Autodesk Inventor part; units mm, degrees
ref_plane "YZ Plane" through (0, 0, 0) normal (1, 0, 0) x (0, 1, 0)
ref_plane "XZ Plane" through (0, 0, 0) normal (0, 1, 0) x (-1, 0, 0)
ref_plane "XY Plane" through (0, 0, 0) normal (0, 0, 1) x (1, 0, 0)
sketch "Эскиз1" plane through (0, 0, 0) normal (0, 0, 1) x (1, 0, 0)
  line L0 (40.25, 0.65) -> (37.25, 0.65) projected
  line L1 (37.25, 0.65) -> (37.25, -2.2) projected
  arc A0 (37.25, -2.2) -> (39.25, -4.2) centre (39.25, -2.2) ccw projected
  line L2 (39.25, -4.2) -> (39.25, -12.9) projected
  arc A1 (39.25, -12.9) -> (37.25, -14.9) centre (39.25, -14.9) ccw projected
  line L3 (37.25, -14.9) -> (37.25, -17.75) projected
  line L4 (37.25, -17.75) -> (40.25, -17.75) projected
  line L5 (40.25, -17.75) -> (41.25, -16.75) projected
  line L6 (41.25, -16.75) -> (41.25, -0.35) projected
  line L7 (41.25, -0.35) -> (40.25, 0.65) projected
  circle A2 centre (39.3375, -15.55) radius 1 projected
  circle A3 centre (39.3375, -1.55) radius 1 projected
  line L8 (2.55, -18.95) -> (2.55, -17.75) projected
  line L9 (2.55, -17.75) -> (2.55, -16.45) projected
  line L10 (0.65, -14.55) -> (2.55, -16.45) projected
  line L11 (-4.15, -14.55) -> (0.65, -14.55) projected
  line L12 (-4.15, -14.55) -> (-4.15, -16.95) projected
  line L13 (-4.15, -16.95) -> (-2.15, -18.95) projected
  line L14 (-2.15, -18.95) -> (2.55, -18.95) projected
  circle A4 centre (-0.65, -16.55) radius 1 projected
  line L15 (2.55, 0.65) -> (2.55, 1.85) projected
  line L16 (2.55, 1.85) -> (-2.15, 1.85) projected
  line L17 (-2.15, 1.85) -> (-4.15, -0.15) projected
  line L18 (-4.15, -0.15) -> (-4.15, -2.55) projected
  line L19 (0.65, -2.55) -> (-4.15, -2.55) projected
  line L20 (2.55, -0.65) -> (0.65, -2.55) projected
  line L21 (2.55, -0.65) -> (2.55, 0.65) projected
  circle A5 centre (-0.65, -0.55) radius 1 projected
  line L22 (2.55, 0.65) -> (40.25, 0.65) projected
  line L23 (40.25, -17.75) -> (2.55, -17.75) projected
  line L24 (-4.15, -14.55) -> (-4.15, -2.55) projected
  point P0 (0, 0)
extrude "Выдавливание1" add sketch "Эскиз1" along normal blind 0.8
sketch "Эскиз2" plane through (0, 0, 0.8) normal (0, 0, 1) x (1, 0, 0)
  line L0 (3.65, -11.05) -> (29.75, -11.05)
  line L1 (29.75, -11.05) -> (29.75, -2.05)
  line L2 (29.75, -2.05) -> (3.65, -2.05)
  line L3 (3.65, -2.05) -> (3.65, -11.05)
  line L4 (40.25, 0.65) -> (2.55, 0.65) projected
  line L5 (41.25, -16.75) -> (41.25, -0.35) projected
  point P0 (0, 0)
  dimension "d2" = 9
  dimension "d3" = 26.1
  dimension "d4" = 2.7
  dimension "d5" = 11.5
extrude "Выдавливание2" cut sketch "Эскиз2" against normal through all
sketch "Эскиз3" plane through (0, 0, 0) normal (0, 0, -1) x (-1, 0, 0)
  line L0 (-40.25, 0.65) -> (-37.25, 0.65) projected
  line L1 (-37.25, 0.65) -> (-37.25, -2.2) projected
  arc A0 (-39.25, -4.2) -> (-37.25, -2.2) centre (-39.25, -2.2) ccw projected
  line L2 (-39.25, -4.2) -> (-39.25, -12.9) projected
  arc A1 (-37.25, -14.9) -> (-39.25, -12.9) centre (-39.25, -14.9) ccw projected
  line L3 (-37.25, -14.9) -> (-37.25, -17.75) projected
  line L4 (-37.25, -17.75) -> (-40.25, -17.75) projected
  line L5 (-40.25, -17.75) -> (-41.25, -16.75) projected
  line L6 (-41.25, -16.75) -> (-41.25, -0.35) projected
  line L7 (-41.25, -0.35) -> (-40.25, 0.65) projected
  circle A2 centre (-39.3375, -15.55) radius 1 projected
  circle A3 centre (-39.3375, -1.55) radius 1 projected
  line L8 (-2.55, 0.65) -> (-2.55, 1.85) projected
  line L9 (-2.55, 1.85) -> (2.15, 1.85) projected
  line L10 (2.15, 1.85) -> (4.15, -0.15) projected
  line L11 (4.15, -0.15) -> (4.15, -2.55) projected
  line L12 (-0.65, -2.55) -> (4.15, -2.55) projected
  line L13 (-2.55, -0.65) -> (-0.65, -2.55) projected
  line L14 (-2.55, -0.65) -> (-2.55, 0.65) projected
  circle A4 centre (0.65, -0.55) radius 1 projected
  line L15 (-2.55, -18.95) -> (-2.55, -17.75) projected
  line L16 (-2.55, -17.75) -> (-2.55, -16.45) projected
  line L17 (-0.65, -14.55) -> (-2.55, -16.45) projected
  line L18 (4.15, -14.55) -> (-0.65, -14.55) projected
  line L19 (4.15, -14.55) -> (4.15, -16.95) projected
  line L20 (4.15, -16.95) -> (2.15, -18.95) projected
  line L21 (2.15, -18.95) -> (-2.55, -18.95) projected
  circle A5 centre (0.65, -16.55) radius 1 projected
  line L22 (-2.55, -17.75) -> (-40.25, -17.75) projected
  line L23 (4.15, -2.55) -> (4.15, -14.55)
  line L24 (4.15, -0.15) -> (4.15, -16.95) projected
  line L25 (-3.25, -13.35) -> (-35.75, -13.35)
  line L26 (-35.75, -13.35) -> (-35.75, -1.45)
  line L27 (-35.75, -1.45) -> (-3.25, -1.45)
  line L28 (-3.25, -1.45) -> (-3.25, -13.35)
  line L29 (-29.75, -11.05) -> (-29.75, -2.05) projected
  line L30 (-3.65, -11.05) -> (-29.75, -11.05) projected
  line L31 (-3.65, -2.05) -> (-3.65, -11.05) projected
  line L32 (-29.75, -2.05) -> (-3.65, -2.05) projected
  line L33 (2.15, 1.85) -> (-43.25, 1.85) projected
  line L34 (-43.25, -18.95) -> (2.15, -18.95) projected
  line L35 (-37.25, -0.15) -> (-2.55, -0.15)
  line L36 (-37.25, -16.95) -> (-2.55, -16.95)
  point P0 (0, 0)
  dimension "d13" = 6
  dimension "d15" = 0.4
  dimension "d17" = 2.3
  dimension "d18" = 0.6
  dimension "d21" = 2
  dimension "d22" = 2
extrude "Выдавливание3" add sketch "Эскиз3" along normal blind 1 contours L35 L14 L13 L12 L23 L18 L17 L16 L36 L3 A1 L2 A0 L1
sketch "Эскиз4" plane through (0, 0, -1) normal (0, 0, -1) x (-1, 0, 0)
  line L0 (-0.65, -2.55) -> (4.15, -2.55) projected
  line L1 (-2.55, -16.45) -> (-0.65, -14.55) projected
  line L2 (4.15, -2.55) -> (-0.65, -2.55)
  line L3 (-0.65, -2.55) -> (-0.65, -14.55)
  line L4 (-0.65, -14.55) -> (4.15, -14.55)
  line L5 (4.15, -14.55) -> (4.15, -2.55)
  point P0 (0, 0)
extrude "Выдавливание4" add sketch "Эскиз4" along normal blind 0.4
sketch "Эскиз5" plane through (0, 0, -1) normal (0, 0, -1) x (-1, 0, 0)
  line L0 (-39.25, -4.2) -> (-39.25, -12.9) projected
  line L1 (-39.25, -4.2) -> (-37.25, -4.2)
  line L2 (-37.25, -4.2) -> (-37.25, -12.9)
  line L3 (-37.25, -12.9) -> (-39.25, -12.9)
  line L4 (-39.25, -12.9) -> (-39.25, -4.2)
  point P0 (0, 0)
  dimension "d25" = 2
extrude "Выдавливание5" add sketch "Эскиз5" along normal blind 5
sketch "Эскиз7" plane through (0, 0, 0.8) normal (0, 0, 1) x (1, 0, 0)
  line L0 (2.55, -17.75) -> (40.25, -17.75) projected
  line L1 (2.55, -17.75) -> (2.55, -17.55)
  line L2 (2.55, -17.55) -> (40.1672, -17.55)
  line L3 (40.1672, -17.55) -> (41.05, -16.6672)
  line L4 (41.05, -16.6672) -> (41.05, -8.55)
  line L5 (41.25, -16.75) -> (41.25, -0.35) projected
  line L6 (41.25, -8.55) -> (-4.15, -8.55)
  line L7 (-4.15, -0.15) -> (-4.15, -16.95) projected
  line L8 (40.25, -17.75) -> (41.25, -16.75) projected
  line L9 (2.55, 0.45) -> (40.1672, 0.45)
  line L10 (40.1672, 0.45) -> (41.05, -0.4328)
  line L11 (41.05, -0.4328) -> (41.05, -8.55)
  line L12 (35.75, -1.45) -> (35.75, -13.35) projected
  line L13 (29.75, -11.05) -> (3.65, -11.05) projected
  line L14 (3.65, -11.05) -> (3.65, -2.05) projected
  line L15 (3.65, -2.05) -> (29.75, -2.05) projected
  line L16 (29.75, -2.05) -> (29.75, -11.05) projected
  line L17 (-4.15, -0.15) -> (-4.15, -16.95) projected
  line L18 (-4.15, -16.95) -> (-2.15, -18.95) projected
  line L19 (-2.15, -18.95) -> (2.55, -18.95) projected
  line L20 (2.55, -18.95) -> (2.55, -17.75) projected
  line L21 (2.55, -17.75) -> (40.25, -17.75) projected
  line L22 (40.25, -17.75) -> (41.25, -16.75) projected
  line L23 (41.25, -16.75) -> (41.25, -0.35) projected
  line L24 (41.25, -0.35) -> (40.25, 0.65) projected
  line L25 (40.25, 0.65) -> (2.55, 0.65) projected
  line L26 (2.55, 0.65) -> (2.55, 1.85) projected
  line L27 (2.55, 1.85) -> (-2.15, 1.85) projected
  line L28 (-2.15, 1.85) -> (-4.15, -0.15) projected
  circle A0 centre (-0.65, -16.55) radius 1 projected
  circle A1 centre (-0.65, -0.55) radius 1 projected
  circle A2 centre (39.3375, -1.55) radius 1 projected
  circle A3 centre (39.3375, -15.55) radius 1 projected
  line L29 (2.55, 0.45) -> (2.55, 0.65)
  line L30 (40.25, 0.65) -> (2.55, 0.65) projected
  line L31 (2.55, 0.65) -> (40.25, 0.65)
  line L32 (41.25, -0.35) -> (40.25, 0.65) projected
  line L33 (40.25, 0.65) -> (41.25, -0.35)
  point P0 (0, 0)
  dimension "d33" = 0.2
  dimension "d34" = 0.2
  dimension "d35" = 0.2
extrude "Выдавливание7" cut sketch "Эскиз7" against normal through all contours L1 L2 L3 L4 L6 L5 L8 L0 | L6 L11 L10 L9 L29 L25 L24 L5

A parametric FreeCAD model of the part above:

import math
import FreeCAD as App
import Part
import Sketcher
Q = App.Units.Quantity

doc = App.newDocument("Part")
body = doc.addObject("PartDesign::Body", "Body")

sketch1 = body.newObject("Sketcher::SketchObject", "Sketch")
sketch1.AttachmentSupport = (doc.getObject("XY_Plane"), [""])
sketch1.MapMode = "FlatFace"
sketch1.addGeometry([
    Part.LineSegment(App.Vector(41.2, -0.3, 0), App.Vector(40.2, 0.7, 0)),
    Part.LineSegment(App.Vector(40.2, 0.7, 0), App.Vector(2.5, 0.7, 0)),
    Part.LineSegment(App.Vector(2.5, 0.7, 0), App.Vector(2.5, 1.9, 0)),
    Part.LineSegment(App.Vector(2.5, 1.9, 0), App.Vector(-2.1, 1.9, 0)),
    Part.LineSegment(App.Vector(-2.1, 1.9, 0), App.Vector(-4.2, -0.1, 0)),
    Part.LineSegment(App.Vector(-4.2, -0.1, 0), App.Vector(-4.2, -16.9, 0)),
    Part.LineSegment(App.Vector(-4.2, -16.9, 0), App.Vector(-2.1, -18.9, 0)),
    Part.LineSegment(App.Vector(-2.1, -18.9, 0), App.Vector(2.5, -18.9, 0)),
    Part.LineSegment(App.Vector(2.5, -18.9, 0), App.Vector(2.5, -17.8, 0)),
    Part.LineSegment(App.Vector(2.5, -17.8, 0), App.Vector(40.2, -17.8, 0)),
    Part.LineSegment(App.Vector(40.2, -17.8, 0), App.Vector(41.2, -16.8, 0)),
    Part.LineSegment(App.Vector(41.2, -16.8, 0), App.Vector(41.2, -0.3, 0)),
    Part.Circle(App.Vector(39.3, -15.6, 0), App.Vector(0, 0, 1), 1),
    Part.Circle(App.Vector(39.3, -1.6, 0), App.Vector(0, 0, 1), 1),
    Part.Circle(App.Vector(-0.7, -0.6, 0), App.Vector(0, 0, 1), 1),
    Part.Circle(App.Vector(-0.7, -16.6, 0), App.Vector(0, 0, 1), 1),
], False)
sketch1.addConstraint([
    Sketcher.Constraint("Coincident", 0, 2, 1, 1),
    Sketcher.Constraint("Coincident", 1, 2, 2, 1),
    Sketcher.Constraint("Coincident", 2, 2, 3, 1),
    Sketcher.Constraint("Coincident", 3, 2, 4, 1),
    Sketcher.Constraint("Coincident", 4, 2, 5, 1),
    Sketcher.Constraint("Coincident", 5, 2, 6, 1),
    Sketcher.Constraint("Coincident", 6, 2, 7, 1),
    Sketcher.Constraint("Coincident", 7, 2, 8, 1),
    Sketcher.Constraint("Coincident", 8, 2, 9, 1),
    Sketcher.Constraint("Coincident", 9, 2, 10, 1),
    Sketcher.Constraint("Coincident", 10, 2, 11, 1),
    Sketcher.Constraint("Coincident", 11, 2, 0, 1),
    Sketcher.Constraint("Horizontal", 1),
    Sketcher.Constraint("Vertical", 2),
    Sketcher.Constraint("Horizontal", 3),
    Sketcher.Constraint("Vertical", 5),
    Sketcher.Constraint("Horizontal", 7),
    Sketcher.Constraint("Vertical", 8),
    Sketcher.Constraint("Horizontal", 9),
    Sketcher.Constraint("Vertical", 11),
    Sketcher.Constraint("Equal", 12, 13),
    Sketcher.Constraint("Equal", 13, 14),
    Sketcher.Constraint("Equal", 14, 15),
    Sketcher.Constraint("Perpendicular", 0, 4),
    Sketcher.Constraint("Perpendicular", 4, 6),
    Sketcher.Constraint("Perpendicular", 6, 10),
    Sketcher.Constraint("Vertical", 12, 3, 13, 3),
    Sketcher.Constraint("Vertical", 14, 3, 15, 3),
    Sketcher.Constraint("Vertical", 3, 2, 6, 2),
    Sketcher.Constraint("Vertical", 2, 2, 7, 2),
    Sketcher.Constraint("Vertical", 0, 2, 9, 2),
    Sketcher.Constraint("Equal", 2, 8),
    Sketcher.Constraint("Equal", 4, 6),
    Sketcher.Constraint("Diameter", 12, Q("2 mm")),
    Sketcher.Constraint("DistanceX", 1, 2, 1, 1, Q("37.7 mm")),
    Sketcher.Constraint("DistanceX", 3, 2, 3, 1, Q("4.7 mm")),
    Sketcher.Constraint("DistanceY", 2, 1, 2, 2, Q("1.2 mm")),
    Sketcher.Constraint("DistanceY", 5, 2, 5, 1, Q("16.8 mm")),
    Sketcher.Constraint("DistanceY", 11, 1, 11, 2, Q("16.4 mm")),
    Sketcher.Constraint("DistanceY", 12, 3, 13, 3, Q("14 mm")),
    Sketcher.Constraint("DistanceY", 13, 3, 14, 3, Q("1 mm")),
    Sketcher.Constraint("DistanceY", 15, 3, 14, 3, Q("16 mm")),
    Sketcher.Constraint("DistanceX", 4, 2, 3, 2, Q("2 mm")),
    Sketcher.Constraint("DistanceY", 13, 3, 0, 2, Q("2.2 mm")),
    Sketcher.Constraint("DistanceX", 14, 3, 0, 2, Q("40.9 mm")),
    Sketcher.Constraint("DistanceY", 12, 3, -1, 1, Q("15.55 mm")),
    Sketcher.Constraint("DistanceX", 14, 3, -1, 1, Q("0.65 mm")),
    Sketcher.Constraint("DistanceX", -1, 1, 12, 3, Q("39.3375 mm")),
])
pad1 = body.newObject("PartDesign::Pad", "Pad")
pad1.Profile = sketch1
pad1.Length = 0.8

sketch2 = body.newObject("Sketcher::SketchObject", "Sketch001")
sketch2.AttachmentSupport = (doc.getObject("XY_Plane"), [""])
sketch2.MapMode = "FlatFace"
sketch2.AttachmentOffset = App.Placement(App.Vector(0, 0, 0.8), App.Rotation())
sketch2.addGeometry([
    Part.LineSegment(App.Vector(4, -2, 0), App.Vector(4, -11, 0)),
    Part.LineSegment(App.Vector(4, -11, 0), App.Vector(30, -11, 0)),
    Part.LineSegment(App.Vector(30, -11, 0), App.Vector(30, -2, 0)),
    Part.LineSegment(App.Vector(30, -2, 0), App.Vector(4, -2, 0)),
], False)
sketch2.addConstraint([
    Sketcher.Constraint("Coincident", 0, 2, 1, 1),
    Sketcher.Constraint("Coincident", 1, 2, 2, 1),
    Sketcher.Constraint("Coincident", 2, 2, 3, 1),
    Sketcher.Constraint("Coincident", 3, 2, 0, 1),
    Sketcher.Constraint("Vertical", 0),
    Sketcher.Constraint("Horizontal", 1),
    Sketcher.Constraint("Vertical", 2),
    Sketcher.Constraint("Horizontal", 3),
    Sketcher.Constraint("DistanceY", 0, 2, 0, 1, Q("9 mm")),
    Sketcher.Constraint("DistanceX", 1, 1, 1, 2, Q("26.1 mm")),
    Sketcher.Constraint("DistanceX", -1, 1, 0, 2, Q("3.65 mm")),
    Sketcher.Constraint("DistanceY", 0, 2, -1, 1, Q("11.05 mm")),
])
pocket1 = body.newObject("PartDesign::Pocket", "Pocket")
pocket1.Profile = sketch2
pocket1.Type = "ThroughAll"

sketch3 = body.newObject("Sketcher::SketchObject", "Sketch002")
sketch3.AttachmentSupport = (doc.getObject("XY_Plane"), [""])
sketch3.MapMode = "FlatFace"
sketch3.addGeometry([
    Part.LineSegment(App.Vector(2.5, -0.1, 0), App.Vector(37.2, -0.1, 0)),
    Part.LineSegment(App.Vector(37.2, -0.1, 0), App.Vector(37.2, -2.2, 0)),
    Part.ArcOfCircle(Part.Circle(App.Vector(39.2, -2.2, 0), App.Vector(0, 0, 1), 2), math.radians(180), math.radians(270)),
    Part.LineSegment(App.Vector(39.2, -4.2, 0), App.Vector(39.2, -12.9, 0)),
    Part.ArcOfCircle(Part.Circle(App.Vector(39.2, -14.9, 0), App.Vector(0, 0, 1), 2), math.radians(90), math.radians(180)),
    Part.LineSegment(App.Vector(37.2, -14.9, 0), App.Vector(37.2, -16.9, 0)),
    Part.LineSegment(App.Vector(37.2, -16.9, 0), App.Vector(2.5, -16.9, 0)),
    Part.LineSegment(App.Vector(2.5, -16.9, 0), App.Vector(2.5, -16.4, 0)),
    Part.LineSegment(App.Vector(2.5, -16.4, 0), App.Vector(0.7, -14.6, 0)),
    Part.LineSegment(App.Vector(0.7, -14.6, 0), App.Vector(-4.2, -14.6, 0)),
    Part.LineSegment(App.Vector(-4.2, -14.6, 0), App.Vector(-4.2, -2.5, 0)),
    Part.LineSegment(App.Vector(-4.2, -2.5, 0), App.Vector(0.7, -2.5, 0)),
    Part.LineSegment(App.Vector(0.7, -2.5, 0), App.Vector(2.5, -0.7, 0)),
    Part.LineSegment(App.Vector(2.5, -0.7, 0), App.Vector(2.5, -0.1, 0)),
    Part.LineSegment(App.Vector(3.2, -1.4, 0), App.Vector(3.2, -13.3, 0)),
    Part.LineSegment(App.Vector(3.2, -13.3, 0), App.Vector(35.8, -13.3, 0)),
    Part.LineSegment(App.Vector(35.8, -13.3, 0), App.Vector(35.8, -1.4, 0)),
    Part.LineSegment(App.Vector(35.8, -1.4, 0), App.Vector(3.2, -1.4, 0)),
], False)
sketch3.addConstraint([
    Sketcher.Constraint("Coincident", 0, 2, 1, 1),
    Sketcher.Constraint("Tangent", 1, 2, 2, 1),
    Sketcher.Constraint("Coincident", 2, 2, 3, 1),
    Sketcher.Constraint("Coincident", 3, 2, 4, 1),
    Sketcher.Constraint("Tangent", 4, 2, 5, 1),
    Sketcher.Constraint("Coincident", 5, 2, 6, 1),
    Sketcher.Constraint("Coincident", 6, 2, 7, 1),
    Sketcher.Constraint("Coincident", 7, 2, 8, 1),
    Sketcher.Constraint("Coincident", 8, 2, 9, 1),
    Sketcher.Constraint("Coincident", 9, 2, 10, 1),
    Sketcher.Constraint("Coincident", 10, 2, 11, 1),
    Sketcher.Constraint("Coincident", 11, 2, 12, 1),
    Sketcher.Constraint("Coincident", 12, 2, 13, 1),
    Sketcher.Constraint("Coincident", 13, 2, 0, 1),
    Sketcher.Constraint("Coincident", 14, 2, 15, 1),
    Sketcher.Constraint("Coincident", 15, 2, 16, 1),
    Sketcher.Constraint("Coincident", 16, 2, 17, 1),
    Sketcher.Constraint("Coincident", 17, 2, 14, 1),
    Sketcher.Constraint("Horizontal", 0),
    Sketcher.Constraint("Vertical", 1),
    Sketcher.Constraint("Vertical", 3),
    Sketcher.Constraint("Vertical", 5),
    Sketcher.Constraint("Horizontal", 6),
    Sketcher.Constraint("Vertical", 7),
    Sketcher.Constraint("Horizontal", 9),
    Sketcher.Constraint("Vertical", 10),
    Sketcher.Constraint("Horizontal", 11),
    Sketcher.Constraint("Vertical", 13),
    Sketcher.Constraint("Vertical", 14),
    Sketcher.Constraint("Horizontal", 15),
    Sketcher.Constraint("Vertical", 16),
    Sketcher.Constraint("Horizontal", 17),
    Sketcher.Constraint("Equal", 2, 4),
    Sketcher.Constraint("Perpendicular", 8, 12),
    Sketcher.Constraint("Vertical", 2, 3, 4, 3),
    Sketcher.Constraint("Vertical", 4, 3, 2, 2),
    Sketcher.Constraint("Vertical", 8, 2, 11, 2),
    Sketcher.Constraint("Vertical", 7, 2, 12, 2),
    Sketcher.Constraint("Equal", 1, 5),
    Sketcher.Constraint("Equal", 7, 13),
    Sketcher.Constraint("Equal", 8, 12),
    Sketcher.Constraint("Radius", 2, Q("2 mm")),
    Sketcher.Constraint("DistanceY", 10, 1, 10, 2, Q("12 mm")),
    Sketcher.Constraint("DistanceX", 0, 1, 0, 2, Q("34.7 mm")),
    Sketcher.Constraint("DistanceX", 9, 2, 9, 1, Q("4.8 mm")),
    Sketcher.Constraint("DistanceX", 15, 1, 15, 2, Q("32.5 mm")),
    Sketcher.Constraint("DistanceY", 3, 2, 3, 1, Q("8.7 mm")),
    Sketcher.Constraint("DistanceY", 7, 1, 7, 2, Q("0.5 mm")),
    Sketcher.Constraint("DistanceY", 14, 2, 14, 1, Q("11.9 mm")),
    Sketcher.Constraint("DistanceY", 1, 2, 1, 1, Q("2.05 mm")),
    Sketcher.Constraint("DistanceY", 2, 3, -1, 1, Q("2.2 mm")),
    Sketcher.Constraint("DistanceX", 8, 2, 14, 2, Q("2.6 mm")),
    Sketcher.Constraint("DistanceY", 8, 2, 14, 2, Q("1.2 mm")),
    Sketcher.Constraint("DistanceX", -1, 1, 2, 3, Q("39.25 mm")),
])
pad2 = body.newObject("PartDesign::Pad", "Pad001")
pad2.Profile = sketch3
pad2.Length = 1
pad2.Reversed = True

sketch4 = body.newObject("Sketcher::SketchObject", "Sketch003")
sketch4.AttachmentSupport = (doc.getObject("XY_Plane"), [""])
sketch4.MapMode = "FlatFace"
sketch4.AttachmentOffset = App.Placement(App.Vector(0, 0, -1), App.Rotation())
sketch4.addGeometry([
    Part.LineSegment(App.Vector(-4.2, -2.5, 0), App.Vector(0.7, -2.5, 0)),
    Part.LineSegment(App.Vector(0.7, -2.5, 0), App.Vector(0.7, -14.6, 0)),
    Part.LineSegment(App.Vector(0.7, -14.6, 0), App.Vector(-4.2, -14.6, 0)),
    Part.LineSegment(App.Vector(-4.2, -14.6, 0), App.Vector(-4.2, -2.5, 0)),
], False)
sketch4.addConstraint([
    Sketcher.Constraint("Coincident", 0, 2, 1, 1),
    Sketcher.Constraint("Coincident", 1, 2, 2, 1),
    Sketcher.Constraint("Coincident", 2, 2, 3, 1),
    Sketcher.Constraint("Coincident", 3, 2, 0, 1),
    Sketcher.Constraint("Horizontal", 0),
    Sketcher.Constraint("Vertical", 1),
    Sketcher.Constraint("Horizontal", 2),
    Sketcher.Constraint("Vertical", 3),
    Sketcher.Constraint("DistanceY", 1, 2, 1, 1, Q("12 mm")),
    Sketcher.Constraint("DistanceX", 0, 1, 0, 2, Q("4.8 mm")),
    Sketcher.Constraint("DistanceX", -1, 1, 0, 2, Q("0.65 mm")),
    Sketcher.Constraint("DistanceY", 0, 2, -1, 1, Q("2.55 mm")),
])
pad3 = body.newObject("PartDesign::Pad", "Pad002")
pad3.Profile = sketch4
pad3.Length = 0.4
pad3.Reversed = True

sketch5 = body.newObject("Sketcher::SketchObject", "Sketch004")
sketch5.AttachmentSupport = (doc.getObject("XY_Plane"), [""])
sketch5.MapMode = "FlatFace"
sketch5.AttachmentOffset = App.Placement(App.Vector(0, 0, -1), App.Rotation())
sketch5.addGeometry([
    Part.LineSegment(App.Vector(37.2, -4.2, 0), App.Vector(39.2, -4.2, 0)),
    Part.LineSegment(App.Vector(39.2, -4.2, 0), App.Vector(39.2, -12.9, 0)),
    Part.LineSegment(App.Vector(39.2, -12.9, 0), App.Vector(37.2, -12.9, 0)),
    Part.LineSegment(App.Vector(37.2, -12.9, 0), App.Vector(37.2, -4.2, 0)),
], False)
sketch5.addConstraint([
    Sketcher.Constraint("Coincident", 0, 2, 1, 1),
    Sketcher.Constraint("Coincident", 1, 2, 2, 1),
    Sketcher.Constraint("Coincident", 2, 2, 3, 1),
    Sketcher.Constraint("Coincident", 3, 2, 0, 1),
    Sketcher.Constraint("Horizontal", 0),
    Sketcher.Constraint("Vertical", 1),
    Sketcher.Constraint("Horizontal", 2),
    Sketcher.Constraint("Vertical", 3),
    Sketcher.Constraint("DistanceX", 0, 1, 0, 2, Q("2 mm")),
    Sketcher.Constraint("DistanceY", 1, 2, 1, 1, Q("8.7 mm")),
    Sketcher.Constraint("DistanceY", 0, 2, -1, 1, Q("4.2 mm")),
    Sketcher.Constraint("DistanceX", -1, 1, 0, 2, Q("39.25 mm")),
])
pad4 = body.newObject("PartDesign::Pad", "Pad003")
pad4.Profile = sketch5
pad4.Length = 5
pad4.Reversed = True

sketch6 = body.newObject("Sketcher::SketchObject", "Sketch005")
sketch6.AttachmentSupport = (doc.getObject("XY_Plane"), [""])
sketch6.MapMode = "FlatFace"
sketch6.AttachmentOffset = App.Placement(App.Vector(0, 0, 0.8), App.Rotation())
sketch6.addGeometry([
    Part.LineSegment(App.Vector(2.55, -17.55, 0), App.Vector(2.55, -17.75, 0)),
    Part.LineSegment(App.Vector(2.55, -17.75, 0), App.Vector(40.25, -17.75, 0)),
    Part.LineSegment(App.Vector(40.25, -17.75, 0), App.Vector(41.25, -16.75, 0)),
    Part.LineSegment(App.Vector(41.25, -16.75, 0), App.Vector(41.25, -0.35, 0)),
    Part.LineSegment(App.Vector(41.25, -0.35, 0), App.Vector(40.25, 0.65, 0)),
    Part.LineSegment(App.Vector(40.25, 0.65, 0), App.Vector(2.55, 0.65, 0)),
    Part.LineSegment(App.Vector(2.55, 0.65, 0), App.Vector(2.55, 0.45, 0)),
    Part.LineSegment(App.Vector(2.55, 0.45, 0), App.Vector(40.17, 0.45, 0)),
    Part.LineSegment(App.Vector(40.17, 0.45, 0), App.Vector(41.05, -0.43, 0)),
    Part.LineSegment(App.Vector(41.05, -0.43, 0), App.Vector(41.05, -16.67, 0)),
    Part.LineSegment(App.Vector(41.05, -16.67, 0), App.Vector(40.17, -17.55, 0)),
    Part.LineSegment(App.Vector(40.17, -17.55, 0), App.Vector(2.55, -17.55, 0)),
], False)
sketch6.addConstraint([
    Sketcher.Constraint("Coincident", 0, 2, 1, 1),
    Sketcher.Constraint("Coincident", 1, 2, 2, 1),
    Sketcher.Constraint("Coincident", 2, 2, 3, 1),
    Sketcher.Constraint("Coincident", 3, 2, 4, 1),
    Sketcher.Constraint("Coincident", 4, 2, 5, 1),
    Sketcher.Constraint("Coincident", 5, 2, 6, 1),
    Sketcher.Constraint("Coincident", 6, 2, 7, 1),
    Sketcher.Constraint("Coincident", 7, 2, 8, 1),
    Sketcher.Constraint("Coincident", 8, 2, 9, 1),
    Sketcher.Constraint("Coincident", 9, 2, 10, 1),
    Sketcher.Constraint("Coincident", 10, 2, 11, 1),
    Sketcher.Constraint("Coincident", 11, 2, 0, 1),
    Sketcher.Constraint("Vertical", 0),
    Sketcher.Constraint("Horizontal", 1),
    Sketcher.Constraint("Vertical", 3),
    Sketcher.Constraint("Horizontal", 5),
    Sketcher.Constraint("Vertical", 6),
    Sketcher.Constraint("Horizontal", 7),
    Sketcher.Constraint("Vertical", 9),
    Sketcher.Constraint("Horizontal", 11),
    Sketcher.Constraint("Perpendicular", 2, 4),
    Sketcher.Constraint("Parallel", 4, 8),
    Sketcher.Constraint("Perpendicular", 8, 10),
    Sketcher.Constraint("Vertical", 1, 2, 4, 2),
    Sketcher.Constraint("Vertical", 0, 2, 5, 2),
    Sketcher.Constraint("Vertical", 7, 2, 10, 2),
    Sketcher.Constraint("Equal", 0, 6),
    Sketcher.Constraint("Equal", 2, 4),
    Sketcher.Constraint("DistanceY", 0, 2, 0, 1, Q("0.2 mm")),
    Sketcher.Constraint("DistanceX", 8, 2, 3, 2, Q("0.2 mm")),
    Sketcher.Constraint("DistanceX", 1, 1, 1, 2, Q("37.7 mm")),
    Sketcher.Constraint("DistanceY", 3, 1, 3, 2, Q("16.4 mm")),
    Sketcher.Constraint("DistanceX", 1, 2, 2, 2, Q("1 mm")),
    Sketcher.Constraint("DistanceX", -1, 1, 0, 2, Q("2.55 mm")),
    Sketcher.Constraint("DistanceY", 0, 2, -1, 1, Q("17.75 mm")),
    Sketcher.Constraint("DistanceX", 7, 1, 7, 2, Q("37.6172 mm")),
])
pocket2 = body.newObject("PartDesign::Pocket", "Pocket001")
pocket2.Profile = sketch6
pocket2.Type = "ThroughAll"

doc.recompute()
